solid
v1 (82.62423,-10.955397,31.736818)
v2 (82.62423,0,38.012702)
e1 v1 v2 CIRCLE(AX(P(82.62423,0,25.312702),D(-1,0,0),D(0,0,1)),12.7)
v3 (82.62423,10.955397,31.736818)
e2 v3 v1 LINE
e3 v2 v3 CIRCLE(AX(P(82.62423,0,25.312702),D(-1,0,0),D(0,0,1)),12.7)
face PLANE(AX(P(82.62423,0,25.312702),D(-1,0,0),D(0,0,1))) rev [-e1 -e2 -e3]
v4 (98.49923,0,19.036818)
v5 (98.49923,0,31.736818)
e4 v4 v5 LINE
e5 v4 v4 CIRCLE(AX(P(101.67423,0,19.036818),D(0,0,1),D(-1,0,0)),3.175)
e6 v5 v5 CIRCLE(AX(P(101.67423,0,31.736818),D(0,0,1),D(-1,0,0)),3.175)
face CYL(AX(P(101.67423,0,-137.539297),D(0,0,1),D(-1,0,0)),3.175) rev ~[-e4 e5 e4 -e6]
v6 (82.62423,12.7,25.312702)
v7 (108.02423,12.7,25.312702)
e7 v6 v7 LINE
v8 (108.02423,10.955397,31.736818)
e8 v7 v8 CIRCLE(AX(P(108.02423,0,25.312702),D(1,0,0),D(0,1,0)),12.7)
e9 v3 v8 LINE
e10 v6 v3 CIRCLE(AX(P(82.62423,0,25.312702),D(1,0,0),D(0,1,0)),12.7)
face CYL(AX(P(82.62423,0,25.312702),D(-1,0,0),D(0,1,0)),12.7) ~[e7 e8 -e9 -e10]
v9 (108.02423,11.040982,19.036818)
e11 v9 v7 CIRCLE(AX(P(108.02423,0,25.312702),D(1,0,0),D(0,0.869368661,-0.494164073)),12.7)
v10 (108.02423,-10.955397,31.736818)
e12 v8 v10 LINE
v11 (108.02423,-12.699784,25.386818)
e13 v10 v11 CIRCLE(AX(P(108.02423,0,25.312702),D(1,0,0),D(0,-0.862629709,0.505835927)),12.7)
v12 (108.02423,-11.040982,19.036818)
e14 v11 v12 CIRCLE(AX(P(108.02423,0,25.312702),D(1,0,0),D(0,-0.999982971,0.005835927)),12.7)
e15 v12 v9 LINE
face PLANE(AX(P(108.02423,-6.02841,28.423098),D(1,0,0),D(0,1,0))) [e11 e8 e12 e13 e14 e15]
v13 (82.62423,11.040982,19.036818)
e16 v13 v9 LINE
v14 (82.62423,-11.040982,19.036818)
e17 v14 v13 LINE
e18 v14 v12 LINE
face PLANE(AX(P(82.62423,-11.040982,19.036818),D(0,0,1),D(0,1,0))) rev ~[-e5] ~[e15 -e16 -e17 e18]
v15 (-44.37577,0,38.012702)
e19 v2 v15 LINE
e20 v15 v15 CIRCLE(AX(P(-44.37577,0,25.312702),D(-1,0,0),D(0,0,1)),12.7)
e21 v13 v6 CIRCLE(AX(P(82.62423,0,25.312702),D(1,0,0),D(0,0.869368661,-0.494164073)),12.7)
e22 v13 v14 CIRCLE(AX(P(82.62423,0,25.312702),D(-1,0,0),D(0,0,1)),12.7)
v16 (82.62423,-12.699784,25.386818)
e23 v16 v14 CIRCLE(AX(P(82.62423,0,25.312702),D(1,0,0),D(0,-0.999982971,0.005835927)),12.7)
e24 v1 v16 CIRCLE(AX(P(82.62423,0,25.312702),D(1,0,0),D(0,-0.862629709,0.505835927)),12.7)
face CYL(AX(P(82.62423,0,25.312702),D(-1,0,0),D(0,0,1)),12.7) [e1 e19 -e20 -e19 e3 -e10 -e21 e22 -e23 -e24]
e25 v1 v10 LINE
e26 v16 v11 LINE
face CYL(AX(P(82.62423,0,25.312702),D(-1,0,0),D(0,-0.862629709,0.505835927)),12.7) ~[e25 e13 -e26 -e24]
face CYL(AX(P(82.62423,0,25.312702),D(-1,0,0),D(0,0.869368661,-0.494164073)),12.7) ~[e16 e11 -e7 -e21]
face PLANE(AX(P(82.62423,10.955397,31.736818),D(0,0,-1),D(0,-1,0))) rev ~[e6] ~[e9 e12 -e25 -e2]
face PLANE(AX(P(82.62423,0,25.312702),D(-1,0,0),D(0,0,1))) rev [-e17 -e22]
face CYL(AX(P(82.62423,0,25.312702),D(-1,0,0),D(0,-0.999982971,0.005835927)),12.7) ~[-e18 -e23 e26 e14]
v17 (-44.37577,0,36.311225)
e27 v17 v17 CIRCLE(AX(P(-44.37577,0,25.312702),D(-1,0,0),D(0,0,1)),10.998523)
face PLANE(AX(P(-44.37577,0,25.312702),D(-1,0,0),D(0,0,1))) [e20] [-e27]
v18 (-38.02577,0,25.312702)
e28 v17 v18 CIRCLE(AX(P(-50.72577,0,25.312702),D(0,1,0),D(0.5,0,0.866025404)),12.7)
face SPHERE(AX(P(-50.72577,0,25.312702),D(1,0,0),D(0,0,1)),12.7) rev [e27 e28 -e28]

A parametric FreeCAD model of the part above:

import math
import FreeCAD as App
import Part
import Sketcher
Q = App.Units.Quantity

doc = App.newDocument("Part")
params = doc.addObject("Spreadsheet::Sheet", "Params")
for row, (alias, value) in enumerate([
    ("sketch1_radius", "0.5 in"),
    ("sketch1_width", "5 in"),
    ("sketch1_height", "0.5 in"),
    ("sketch1_width2", "4.75 in"),
    ("revolution_angle", "360 deg"),
    ("sketch2_radius", "0.5 in"),
    ("pad1_length", "1 in"),
    ("sketch3_diameter", "0.25 in"),
    ("hole_diameter", "0.25 in"),
], start=1):
    params.set(f"A{row}", alias)
    params.set(f"B{row}", "=" + value)
    params.setAlias(f"B{row}", alias)

body = doc.addObject("PartDesign::Body", "Body")

sketch1 = doc.addObject("Sketcher::SketchObject", "Sketch")
body.addObject(sketch1)
sketch1.AttachmentSupport = (doc.XZ_Plane, [""])
sketch1.MapMode = "FlatFace"
sketch1.addGeometry([
    Part.LineSegment(App.Vector(82.6, 38, 0), App.Vector(-44.4, 38, 0)),
    Part.LineSegment(App.Vector(-44.4, 38, 0), App.Vector(-44.4, 36.3, 0)),
    Part.ArcOfCircle(Part.Circle(App.Vector(-50.7, 25.3, 0), App.Vector(0, 0, 1), 12.7), math.radians(0), math.radians(60)),
    Part.LineSegment(App.Vector(-38, 25.3, 0), App.Vector(82.6, 25.3, 0)),
    Part.LineSegment(App.Vector(82.6, 25.3, 0), App.Vector(82.6, 38, 0)),
], False)
sketch1.addGeometry(Part.LineSegment(App.Vector(82.6, 25.3, 0), App.Vector(-50.7, 25.3, 0)), True)
sketch1.addConstraint([
    Sketcher.Constraint("Coincident", 0, 2, 1, 1),
    Sketcher.Constraint("Coincident", 1, 2, 2, 2),
    Sketcher.Constraint("Coincident", 2, 1, 3, 1),
    Sketcher.Constraint("Coincident", 3, 2, 4, 1),
    Sketcher.Constraint("Coincident", 4, 2, 0, 1),
    Sketcher.Constraint("Horizontal", 0),
    Sketcher.Constraint("Vertical", 1),
    Sketcher.Constraint("Horizontal", 3),
    Sketcher.Constraint("Vertical", 4),
    Sketcher.Constraint("Horizontal", 5),
    Sketcher.Constraint("Coincident", 5, 1, 3, 2),
    Sketcher.Constraint("Coincident", 5, 2, 2, 3),
    Sketcher.Constraint("Radius", 2, Q("0.5 in")),
    Sketcher.Constraint("DistanceX", 0, 2, 0, 1, Q("5 in")),
    Sketcher.Constraint("DistanceY", 4, 1, 4, 2, Q("0.5 in")),
    Sketcher.Constraint("DistanceX", 3, 1, 3, 2, Q("4.75 in")),
    Sketcher.Constraint("DistanceX", 2, 3, -1, 1, Q("50.72577 mm")),
    Sketcher.Constraint("DistanceY", -1, 1, 2, 3, Q("25.312702 mm")),
])
sketch1.setExpression("Constraints[12]", "Params.sketch1_radius")
sketch1.setExpression("Constraints[13]", "Params.sketch1_width")
sketch1.setExpression("Constraints[14]", "Params.sketch1_height")
sketch1.setExpression("Constraints[15]", "Params.sketch1_width2")
revolution = doc.addObject("PartDesign::Revolution", "Revolution")
body.addObject(revolution)
revolution.Profile = sketch1
revolution.ReferenceAxis = (sketch1, ["Axis0"])
revolution.setExpression("Angle", "Params.revolution_angle")

sketch2 = doc.addObject("Sketcher::SketchObject", "Sketch001")
body.addObject(sketch2)
sketch2.AttachmentSupport = (doc.YZ_Plane, [""])
sketch2.MapMode = "FlatFace"
sketch2.AttachmentOffset = App.Placement(App.Vector(0, 0, 82.62423), App.Rotation())
sketch2.addGeometry([
    Part.ArcOfCircle(Part.Circle(App.Vector(0, 25, 0), App.Vector(0, 0, 1), 13), math.radians(150), math.radians(180)),
    Part.ArcOfCircle(Part.Circle(App.Vector(0, 25, 0), App.Vector(0, 0, 1), 13), math.radians(180), math.radians(210)),
    Part.LineSegment(App.Vector(-11, 19, 0), App.Vector(11, 19, 0)),
    Part.ArcOfCircle(Part.Circle(App.Vector(0, 25, 0), App.Vector(0, 0, 1), 13), math.radians(-30), math.radians(0)),
    Part.ArcOfCircle(Part.Circle(App.Vector(0, 25, 0), App.Vector(0, 0, 1), 13), math.radians(0), math.radians(30)),
    Part.LineSegment(App.Vector(11, 32, 0), App.Vector(-11, 32, 0)),
], False)
sketch2.addConstraint([
    Sketcher.Constraint("Tangent", 0, 2, 1, 1),
    Sketcher.Constraint("Coincident", 1, 2, 2, 1),
    Sketcher.Constraint("Coincident", 2, 2, 3, 1),
    Sketcher.Constraint("Tangent", 3, 2, 4, 1),
    Sketcher.Constraint("Coincident", 4, 2, 5, 1),
    Sketcher.Constraint("Coincident", 5, 2, 0, 1),
    Sketcher.Constraint("Horizontal", 2),
    Sketcher.Constraint("Horizontal", 5),
    Sketcher.Constraint("Coincident", 3, 3, 0, 3),
    Sketcher.Constraint("Equal", 0, 1),
    Sketcher.Constraint("Equal", 1, 3),
    Sketcher.Constraint("Equal", 3, 4),
    Sketcher.Constraint("PointOnObject", 0, 3, -2),
    Sketcher.Constraint("Horizontal", 4, 3, 3, 2),
    Sketcher.Constraint("Radius", 0, Q("0.5 in")),
    Sketcher.Constraint("DistanceY", 1, 2, 0, 2, Q("0.25 in")),
    Sketcher.Constraint("DistanceY", 0, 2, 5, 2, Q("0.25 in")),
    Sketcher.Constraint("DistanceX", 0, 2, 1, 2, Q("1.658802 mm")),
    Sketcher.Constraint("DistanceY", -1, 1, 0, 2, Q("25.386818 mm")),
])
sketch2.setExpression("Constraints[14]", "Params.sketch2_radius")
pad1 = doc.addObject("PartDesign::Pad", "Pad")
body.addObject(pad1)
pad1.Profile = sketch2
pad1.setExpression("Length", "Params.pad1_length")

sketch3 = doc.addObject("Sketcher::SketchObject", "Sketch002")
body.addObject(sketch3)
sketch3.AttachmentSupport = (doc.XY_Plane, [""])
sketch3.MapMode = "FlatFace"
sketch3.AttachmentOffset = App.Placement(App.Vector(0, 0, 19.036818), App.Rotation())
sketch3.addGeometry(Part.Circle(App.Vector(101.7, 0, 0), App.Vector(0, 0, 1), 3.2), False)
sketch3.addConstraint([
    Sketcher.Constraint("PointOnObject", 0, 3, -1),
    Sketcher.Constraint("Diameter", 0, Q("0.25 in")),
    Sketcher.Constraint("DistanceX", -1, 1, 0, 3, Q("101.67423 mm")),
])
sketch3.setExpression("Constraints[1]", "Params.sketch3_diameter")
doc.recompute()
hole = doc.addObject("PartDesign::Hole", "Hole")
body.addObject(hole)
hole.Profile = sketch3
hole.ThreadType = "None"
hole.setExpression("Diameter", "Params.hole_diameter")
hole.DepthType = "ThroughAll"
hole.Reversed = True

doc.recompute()
